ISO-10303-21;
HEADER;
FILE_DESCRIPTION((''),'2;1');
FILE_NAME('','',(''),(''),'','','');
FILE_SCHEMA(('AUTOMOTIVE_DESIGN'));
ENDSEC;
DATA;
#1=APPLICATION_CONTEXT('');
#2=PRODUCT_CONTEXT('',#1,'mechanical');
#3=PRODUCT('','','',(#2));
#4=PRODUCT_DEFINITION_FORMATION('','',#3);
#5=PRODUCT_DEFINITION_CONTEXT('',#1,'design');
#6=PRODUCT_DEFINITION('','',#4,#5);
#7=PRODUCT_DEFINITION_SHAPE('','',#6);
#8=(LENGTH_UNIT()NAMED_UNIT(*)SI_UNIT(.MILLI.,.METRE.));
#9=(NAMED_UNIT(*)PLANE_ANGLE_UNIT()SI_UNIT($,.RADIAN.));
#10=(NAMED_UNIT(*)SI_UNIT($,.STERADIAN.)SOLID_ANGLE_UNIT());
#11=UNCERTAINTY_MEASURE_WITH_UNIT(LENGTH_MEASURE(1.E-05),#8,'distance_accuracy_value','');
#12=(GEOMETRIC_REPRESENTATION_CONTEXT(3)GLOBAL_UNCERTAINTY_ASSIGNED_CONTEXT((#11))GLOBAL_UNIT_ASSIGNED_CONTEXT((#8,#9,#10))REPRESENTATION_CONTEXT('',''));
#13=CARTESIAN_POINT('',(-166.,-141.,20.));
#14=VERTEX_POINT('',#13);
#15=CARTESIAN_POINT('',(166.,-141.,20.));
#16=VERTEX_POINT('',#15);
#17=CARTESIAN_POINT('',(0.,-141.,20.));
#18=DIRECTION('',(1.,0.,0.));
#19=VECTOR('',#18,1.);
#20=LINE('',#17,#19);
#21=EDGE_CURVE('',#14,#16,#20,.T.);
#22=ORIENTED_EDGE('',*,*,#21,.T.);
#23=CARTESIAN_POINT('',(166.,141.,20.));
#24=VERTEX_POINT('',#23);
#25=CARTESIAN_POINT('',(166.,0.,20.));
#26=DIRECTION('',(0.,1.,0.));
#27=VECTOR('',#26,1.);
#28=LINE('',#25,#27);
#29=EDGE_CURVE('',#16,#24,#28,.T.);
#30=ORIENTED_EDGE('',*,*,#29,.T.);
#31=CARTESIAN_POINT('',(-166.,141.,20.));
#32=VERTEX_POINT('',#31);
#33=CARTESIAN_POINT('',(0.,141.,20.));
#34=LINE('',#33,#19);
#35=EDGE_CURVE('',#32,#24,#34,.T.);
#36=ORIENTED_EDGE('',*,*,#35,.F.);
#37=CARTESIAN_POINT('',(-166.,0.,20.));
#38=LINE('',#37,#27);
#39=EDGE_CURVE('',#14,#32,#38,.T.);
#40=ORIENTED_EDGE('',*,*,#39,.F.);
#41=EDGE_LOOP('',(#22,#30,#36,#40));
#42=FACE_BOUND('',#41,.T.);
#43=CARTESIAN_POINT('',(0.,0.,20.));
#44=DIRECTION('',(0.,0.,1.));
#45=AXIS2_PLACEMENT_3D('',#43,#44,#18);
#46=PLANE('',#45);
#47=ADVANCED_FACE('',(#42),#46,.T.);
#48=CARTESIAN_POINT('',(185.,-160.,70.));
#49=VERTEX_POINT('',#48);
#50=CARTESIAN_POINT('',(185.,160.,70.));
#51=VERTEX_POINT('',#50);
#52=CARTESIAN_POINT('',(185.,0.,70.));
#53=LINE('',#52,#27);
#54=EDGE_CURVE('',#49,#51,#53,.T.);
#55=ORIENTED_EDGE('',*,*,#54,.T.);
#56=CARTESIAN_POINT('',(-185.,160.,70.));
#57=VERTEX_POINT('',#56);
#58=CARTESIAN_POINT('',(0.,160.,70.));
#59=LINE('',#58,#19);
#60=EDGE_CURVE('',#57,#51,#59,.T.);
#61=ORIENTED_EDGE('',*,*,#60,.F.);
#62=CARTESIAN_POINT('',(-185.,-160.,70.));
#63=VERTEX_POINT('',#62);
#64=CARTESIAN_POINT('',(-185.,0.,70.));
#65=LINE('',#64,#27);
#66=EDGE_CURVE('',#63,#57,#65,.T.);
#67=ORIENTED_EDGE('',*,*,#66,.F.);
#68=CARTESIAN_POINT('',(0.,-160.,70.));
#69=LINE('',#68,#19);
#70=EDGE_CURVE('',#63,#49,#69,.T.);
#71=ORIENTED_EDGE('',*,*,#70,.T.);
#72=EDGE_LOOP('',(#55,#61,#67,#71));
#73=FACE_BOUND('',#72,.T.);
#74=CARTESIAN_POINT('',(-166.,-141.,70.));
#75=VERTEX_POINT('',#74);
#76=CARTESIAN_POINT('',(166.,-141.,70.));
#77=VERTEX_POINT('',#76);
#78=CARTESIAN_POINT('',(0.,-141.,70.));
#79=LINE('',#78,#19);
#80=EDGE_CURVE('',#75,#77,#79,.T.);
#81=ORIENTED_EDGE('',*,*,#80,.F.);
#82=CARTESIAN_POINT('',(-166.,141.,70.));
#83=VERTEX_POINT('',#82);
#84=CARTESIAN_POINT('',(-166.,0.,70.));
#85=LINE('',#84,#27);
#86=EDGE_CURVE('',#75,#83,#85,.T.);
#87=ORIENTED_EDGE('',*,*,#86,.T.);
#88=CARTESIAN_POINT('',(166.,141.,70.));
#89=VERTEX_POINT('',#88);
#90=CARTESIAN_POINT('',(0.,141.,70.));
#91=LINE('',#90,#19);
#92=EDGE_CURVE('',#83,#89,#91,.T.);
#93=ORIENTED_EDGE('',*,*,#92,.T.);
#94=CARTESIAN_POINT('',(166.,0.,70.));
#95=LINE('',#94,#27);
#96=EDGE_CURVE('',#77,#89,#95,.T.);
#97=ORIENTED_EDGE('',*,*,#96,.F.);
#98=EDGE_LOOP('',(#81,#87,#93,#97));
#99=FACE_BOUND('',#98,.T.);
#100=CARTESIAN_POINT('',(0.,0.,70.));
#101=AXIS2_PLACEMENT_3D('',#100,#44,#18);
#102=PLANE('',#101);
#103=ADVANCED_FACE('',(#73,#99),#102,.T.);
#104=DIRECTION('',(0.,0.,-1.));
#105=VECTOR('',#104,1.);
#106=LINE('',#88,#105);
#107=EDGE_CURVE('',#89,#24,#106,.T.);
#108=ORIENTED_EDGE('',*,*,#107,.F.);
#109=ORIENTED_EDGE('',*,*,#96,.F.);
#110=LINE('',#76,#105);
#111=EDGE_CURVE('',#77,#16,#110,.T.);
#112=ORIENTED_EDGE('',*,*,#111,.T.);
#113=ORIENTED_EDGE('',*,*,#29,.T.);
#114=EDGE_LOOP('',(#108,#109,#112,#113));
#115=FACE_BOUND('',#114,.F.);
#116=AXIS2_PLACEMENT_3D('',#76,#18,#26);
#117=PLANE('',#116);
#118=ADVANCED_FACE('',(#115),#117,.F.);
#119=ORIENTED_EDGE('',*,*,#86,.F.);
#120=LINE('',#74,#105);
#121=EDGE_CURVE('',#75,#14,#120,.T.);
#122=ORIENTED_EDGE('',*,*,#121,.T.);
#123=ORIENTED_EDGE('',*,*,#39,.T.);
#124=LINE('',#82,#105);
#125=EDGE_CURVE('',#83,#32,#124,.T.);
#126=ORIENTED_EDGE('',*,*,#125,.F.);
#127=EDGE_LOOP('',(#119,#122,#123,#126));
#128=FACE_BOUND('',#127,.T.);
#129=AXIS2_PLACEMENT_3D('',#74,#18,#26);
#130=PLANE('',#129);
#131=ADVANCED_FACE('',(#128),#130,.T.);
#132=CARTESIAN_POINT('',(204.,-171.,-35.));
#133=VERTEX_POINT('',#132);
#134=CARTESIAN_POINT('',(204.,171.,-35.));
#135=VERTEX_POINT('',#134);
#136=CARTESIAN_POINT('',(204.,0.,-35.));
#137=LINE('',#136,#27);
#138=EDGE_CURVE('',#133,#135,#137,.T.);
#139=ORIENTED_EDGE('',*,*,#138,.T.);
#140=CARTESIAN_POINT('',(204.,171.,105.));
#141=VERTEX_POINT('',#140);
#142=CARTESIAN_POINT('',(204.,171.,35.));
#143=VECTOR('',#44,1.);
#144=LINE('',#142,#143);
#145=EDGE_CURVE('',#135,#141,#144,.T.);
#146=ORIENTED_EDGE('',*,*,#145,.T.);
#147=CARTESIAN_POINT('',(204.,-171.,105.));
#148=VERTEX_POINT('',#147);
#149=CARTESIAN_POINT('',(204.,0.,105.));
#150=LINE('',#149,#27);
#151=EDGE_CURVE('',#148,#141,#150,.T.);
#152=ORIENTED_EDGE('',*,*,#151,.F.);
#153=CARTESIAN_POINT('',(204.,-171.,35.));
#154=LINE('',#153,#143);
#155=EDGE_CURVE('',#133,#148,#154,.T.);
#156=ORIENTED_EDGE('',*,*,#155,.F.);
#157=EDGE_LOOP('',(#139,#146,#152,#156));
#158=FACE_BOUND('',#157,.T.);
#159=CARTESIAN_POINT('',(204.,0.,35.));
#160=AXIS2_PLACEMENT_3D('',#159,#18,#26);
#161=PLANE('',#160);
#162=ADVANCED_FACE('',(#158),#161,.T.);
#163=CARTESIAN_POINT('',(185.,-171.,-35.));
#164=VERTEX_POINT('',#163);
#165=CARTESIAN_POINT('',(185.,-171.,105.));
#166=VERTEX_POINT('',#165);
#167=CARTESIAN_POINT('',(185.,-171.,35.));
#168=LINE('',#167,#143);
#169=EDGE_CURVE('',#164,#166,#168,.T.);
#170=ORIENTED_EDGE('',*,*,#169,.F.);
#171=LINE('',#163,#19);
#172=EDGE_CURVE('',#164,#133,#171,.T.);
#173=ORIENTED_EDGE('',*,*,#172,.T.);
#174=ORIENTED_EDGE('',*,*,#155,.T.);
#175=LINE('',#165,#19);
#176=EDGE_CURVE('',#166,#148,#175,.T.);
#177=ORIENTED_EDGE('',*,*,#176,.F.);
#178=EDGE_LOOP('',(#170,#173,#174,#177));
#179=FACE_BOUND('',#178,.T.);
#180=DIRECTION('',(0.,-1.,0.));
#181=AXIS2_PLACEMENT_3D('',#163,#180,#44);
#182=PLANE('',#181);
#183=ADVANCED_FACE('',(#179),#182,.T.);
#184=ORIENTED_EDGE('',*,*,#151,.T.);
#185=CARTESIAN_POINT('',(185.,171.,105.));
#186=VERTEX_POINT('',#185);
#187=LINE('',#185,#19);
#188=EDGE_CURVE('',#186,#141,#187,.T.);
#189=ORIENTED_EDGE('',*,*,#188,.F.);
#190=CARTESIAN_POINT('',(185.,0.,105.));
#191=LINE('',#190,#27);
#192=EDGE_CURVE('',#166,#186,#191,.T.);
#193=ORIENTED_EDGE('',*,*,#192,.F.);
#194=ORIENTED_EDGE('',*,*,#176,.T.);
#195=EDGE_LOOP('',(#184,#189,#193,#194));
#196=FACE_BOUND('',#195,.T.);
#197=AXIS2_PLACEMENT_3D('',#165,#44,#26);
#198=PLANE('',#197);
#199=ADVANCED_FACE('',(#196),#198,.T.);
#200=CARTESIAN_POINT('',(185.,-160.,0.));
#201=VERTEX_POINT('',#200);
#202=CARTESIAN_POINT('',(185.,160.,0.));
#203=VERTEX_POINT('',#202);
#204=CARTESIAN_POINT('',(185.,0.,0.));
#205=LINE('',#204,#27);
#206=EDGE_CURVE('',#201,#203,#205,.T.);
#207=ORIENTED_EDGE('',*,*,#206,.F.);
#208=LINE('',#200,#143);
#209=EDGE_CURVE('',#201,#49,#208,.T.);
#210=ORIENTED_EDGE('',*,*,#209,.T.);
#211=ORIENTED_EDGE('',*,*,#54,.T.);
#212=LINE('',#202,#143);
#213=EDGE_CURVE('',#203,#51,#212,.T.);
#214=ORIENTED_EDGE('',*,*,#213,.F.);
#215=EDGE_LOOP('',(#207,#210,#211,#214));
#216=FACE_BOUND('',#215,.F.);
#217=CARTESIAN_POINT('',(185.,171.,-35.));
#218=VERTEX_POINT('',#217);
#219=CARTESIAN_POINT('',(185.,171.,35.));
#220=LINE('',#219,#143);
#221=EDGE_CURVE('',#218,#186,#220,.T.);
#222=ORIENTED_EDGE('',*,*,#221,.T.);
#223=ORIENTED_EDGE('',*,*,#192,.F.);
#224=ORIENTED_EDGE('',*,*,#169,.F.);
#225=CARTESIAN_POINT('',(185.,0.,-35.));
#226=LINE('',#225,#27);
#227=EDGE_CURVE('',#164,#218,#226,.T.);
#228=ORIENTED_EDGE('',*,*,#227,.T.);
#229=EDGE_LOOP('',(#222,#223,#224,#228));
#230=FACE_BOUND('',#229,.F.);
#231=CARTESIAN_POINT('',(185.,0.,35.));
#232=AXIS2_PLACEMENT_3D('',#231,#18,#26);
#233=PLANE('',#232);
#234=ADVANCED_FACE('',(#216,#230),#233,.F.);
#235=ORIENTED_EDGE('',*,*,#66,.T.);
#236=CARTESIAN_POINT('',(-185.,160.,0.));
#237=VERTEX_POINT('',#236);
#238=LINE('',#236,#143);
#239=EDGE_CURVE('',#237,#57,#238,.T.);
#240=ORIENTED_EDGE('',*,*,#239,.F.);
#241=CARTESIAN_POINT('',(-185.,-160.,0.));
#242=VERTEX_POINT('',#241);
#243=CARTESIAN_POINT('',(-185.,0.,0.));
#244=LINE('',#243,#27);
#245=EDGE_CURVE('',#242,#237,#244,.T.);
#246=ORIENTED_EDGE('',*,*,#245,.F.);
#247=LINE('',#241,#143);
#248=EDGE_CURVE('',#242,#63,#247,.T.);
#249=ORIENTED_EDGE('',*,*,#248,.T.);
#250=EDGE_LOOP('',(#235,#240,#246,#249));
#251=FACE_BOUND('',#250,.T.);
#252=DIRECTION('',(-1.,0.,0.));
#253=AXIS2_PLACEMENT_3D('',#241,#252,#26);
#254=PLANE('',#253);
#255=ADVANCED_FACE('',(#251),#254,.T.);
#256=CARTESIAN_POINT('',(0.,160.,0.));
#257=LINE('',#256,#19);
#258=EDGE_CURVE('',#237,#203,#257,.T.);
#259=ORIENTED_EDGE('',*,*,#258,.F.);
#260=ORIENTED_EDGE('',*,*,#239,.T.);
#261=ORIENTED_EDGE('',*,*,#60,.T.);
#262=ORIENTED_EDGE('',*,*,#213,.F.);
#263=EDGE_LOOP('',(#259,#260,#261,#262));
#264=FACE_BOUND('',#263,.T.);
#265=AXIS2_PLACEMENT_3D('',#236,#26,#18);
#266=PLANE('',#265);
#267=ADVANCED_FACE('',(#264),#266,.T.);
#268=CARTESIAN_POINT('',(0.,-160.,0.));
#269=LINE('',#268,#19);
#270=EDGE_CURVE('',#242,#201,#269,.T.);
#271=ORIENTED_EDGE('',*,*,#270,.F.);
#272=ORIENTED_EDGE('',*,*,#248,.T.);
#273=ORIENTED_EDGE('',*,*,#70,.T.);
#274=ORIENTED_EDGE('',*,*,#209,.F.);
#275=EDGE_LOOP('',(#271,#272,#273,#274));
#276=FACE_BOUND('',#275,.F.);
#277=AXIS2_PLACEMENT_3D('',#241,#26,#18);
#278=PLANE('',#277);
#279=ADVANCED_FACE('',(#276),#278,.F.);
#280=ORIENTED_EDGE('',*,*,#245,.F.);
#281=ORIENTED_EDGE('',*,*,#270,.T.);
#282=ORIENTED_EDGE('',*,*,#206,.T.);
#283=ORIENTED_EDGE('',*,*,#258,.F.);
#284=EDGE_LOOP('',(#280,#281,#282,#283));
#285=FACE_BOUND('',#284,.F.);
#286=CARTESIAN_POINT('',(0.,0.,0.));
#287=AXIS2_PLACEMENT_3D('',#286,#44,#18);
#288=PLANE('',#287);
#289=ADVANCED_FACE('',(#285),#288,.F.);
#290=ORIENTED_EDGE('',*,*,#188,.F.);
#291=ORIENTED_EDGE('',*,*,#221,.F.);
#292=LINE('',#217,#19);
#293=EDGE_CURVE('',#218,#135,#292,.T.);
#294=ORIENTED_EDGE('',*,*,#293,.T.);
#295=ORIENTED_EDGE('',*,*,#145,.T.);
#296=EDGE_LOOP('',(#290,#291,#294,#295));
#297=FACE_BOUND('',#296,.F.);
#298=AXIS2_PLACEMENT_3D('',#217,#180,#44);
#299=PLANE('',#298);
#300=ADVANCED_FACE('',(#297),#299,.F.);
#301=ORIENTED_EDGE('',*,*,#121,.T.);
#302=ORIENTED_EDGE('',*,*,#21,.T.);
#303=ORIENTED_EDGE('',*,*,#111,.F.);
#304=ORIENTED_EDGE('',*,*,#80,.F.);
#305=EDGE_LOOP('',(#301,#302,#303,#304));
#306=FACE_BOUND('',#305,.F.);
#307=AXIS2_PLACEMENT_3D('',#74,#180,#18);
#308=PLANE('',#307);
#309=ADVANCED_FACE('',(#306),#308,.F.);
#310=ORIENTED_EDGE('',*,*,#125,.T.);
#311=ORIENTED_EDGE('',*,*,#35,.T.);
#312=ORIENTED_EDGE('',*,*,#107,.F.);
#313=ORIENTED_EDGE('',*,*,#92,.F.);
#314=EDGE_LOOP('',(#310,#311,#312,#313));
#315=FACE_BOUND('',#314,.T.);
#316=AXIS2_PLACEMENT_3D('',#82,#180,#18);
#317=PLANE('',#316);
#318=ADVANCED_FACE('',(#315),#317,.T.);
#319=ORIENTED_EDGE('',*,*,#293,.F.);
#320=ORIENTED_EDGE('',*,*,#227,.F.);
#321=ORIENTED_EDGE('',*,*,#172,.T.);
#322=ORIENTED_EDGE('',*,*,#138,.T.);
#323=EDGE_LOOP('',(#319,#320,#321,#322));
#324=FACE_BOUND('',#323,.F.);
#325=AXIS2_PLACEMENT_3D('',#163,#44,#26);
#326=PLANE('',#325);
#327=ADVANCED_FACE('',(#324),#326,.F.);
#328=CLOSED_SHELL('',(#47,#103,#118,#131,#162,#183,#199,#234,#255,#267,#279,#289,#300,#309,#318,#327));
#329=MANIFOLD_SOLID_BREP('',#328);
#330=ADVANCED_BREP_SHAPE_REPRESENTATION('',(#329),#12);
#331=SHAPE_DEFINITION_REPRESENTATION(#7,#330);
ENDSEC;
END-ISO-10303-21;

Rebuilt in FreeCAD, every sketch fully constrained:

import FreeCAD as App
import Part
import Sketcher
from FreeCAD import Vector
Q = App.Units.Quantity

doc = App.newDocument("Part")
body = doc.addObject("PartDesign::Body", "Body")

sketch1 = body.newObject("Sketcher::SketchObject", "Sketch")
sketch1.AttachmentSupport = (doc.getObject("XY_Plane"), [""])
sketch1.MapMode = "FlatFace"
sketch1.addGeometry([
    Part.LineSegment(Vector(-185, 160, 0), Vector(-185, -160, 0)),
    Part.LineSegment(Vector(-185, -160, 0), Vector(185, -160, 0)),
    Part.LineSegment(Vector(185, -160, 0), Vector(185, 160, 0)),
    Part.LineSegment(Vector(185, 160, 0), Vector(-185, 160, 0)),
], False)
sketch1.addConstraint([
    Sketcher.Constraint("Coincident", 0, 2, 1, 1),
    Sketcher.Constraint("Coincident", 1, 2, 2, 1),
    Sketcher.Constraint("Coincident", 2, 2, 3, 1),
    Sketcher.Constraint("Coincident", 3, 2, 0, 1),
    Sketcher.Constraint("Vertical", 0),
    Sketcher.Constraint("Horizontal", 1),
    Sketcher.Constraint("Vertical", 2),
    Sketcher.Constraint("Horizontal", 3),
    Sketcher.Constraint("Symmetric", 0, 2, 2, 2, -1, 1),
    Sketcher.Constraint("DistanceX", 1, 1, 1, 2, Q("370 mm")),
    Sketcher.Constraint("DistanceY", 0, 2, 0, 1, Q("320 mm")),
])
pad1 = body.newObject("PartDesign::Pad", "Pad")
pad1.Profile = sketch1
pad1.Length = 70

sketch2 = body.newObject("Sketcher::SketchObject", "Sketch001")
sketch2.AttachmentSupport = (doc.getObject("XY_Plane"), [""])
sketch2.MapMode = "FlatFace"
sketch2.AttachmentOffset = App.Placement(Vector(0, 0, 70), App.Rotation())
sketch2.addGeometry([
    Part.LineSegment(Vector(-166, 141, 0), Vector(-166, -141, 0)),
    Part.LineSegment(Vector(-166, -141, 0), Vector(166, -141, 0)),
    Part.LineSegment(Vector(166, -141, 0), Vector(166, 141, 0)),
    Part.LineSegment(Vector(166, 141, 0), Vector(-166, 141, 0)),
], False)
sketch2.addConstraint([
    Sketcher.Constraint("Coincident", 0, 2, 1, 1),
    Sketcher.Constraint("Coincident", 1, 2, 2, 1),
    Sketcher.Constraint("Coincident", 2, 2, 3, 1),
    Sketcher.Constraint("Coincident", 3, 2, 0, 1),
    Sketcher.Constraint("Vertical", 0),
    Sketcher.Constraint("Horizontal", 1),
    Sketcher.Constraint("Vertical", 2),
    Sketcher.Constraint("Horizontal", 3),
    Sketcher.Constraint("Symmetric", 0, 2, 2, 2, -1, 1),
    Sketcher.Constraint("DistanceX", 1, 1, 1, 2, Q("332 mm")),
    Sketcher.Constraint("DistanceY", 0, 2, 0, 1, Q("282 mm")),
])
pocket1 = body.newObject("PartDesign::Pocket", "Pocket")
pocket1.Profile = sketch2
pocket1.Length = 50

sketch3 = body.newObject("Sketcher::SketchObject", "Sketch002")
sketch3.AttachmentSupport = (doc.getObject("YZ_Plane"), [""])
sketch3.MapMode = "FlatFace"
sketch3.AttachmentOffset = App.Placement(Vector(0, 0, 185), App.Rotation())
sketch3.addGeometry([
    Part.LineSegment(Vector(-171, 105, 0), Vector(-171, -35, 0)),
    Part.LineSegment(Vector(-171, -35, 0), Vector(171, -35, 0)),
    Part.LineSegment(Vector(171, -35, 0), Vector(171, 105, 0)),
    Part.LineSegment(Vector(171, 105, 0), Vector(-171, 105, 0)),
], False)
sketch3.addConstraint([
    Sketcher.Constraint("Coincident", 0, 2, 1, 1),
    Sketcher.Constraint("Coincident", 1, 2, 2, 1),
    Sketcher.Constraint("Coincident", 2, 2, 3, 1),
    Sketcher.Constraint("Coincident", 3, 2, 0, 1),
    Sketcher.Constraint("Vertical", 0),
    Sketcher.Constraint("Horizontal", 1),
    Sketcher.Constraint("Vertical", 2),
    Sketcher.Constraint("Horizontal", 3),
    Sketcher.Constraint("DistanceX", 1, 1, 1, 2, Q("342 mm")),
    Sketcher.Constraint("DistanceY", 0, 2, 0, 1, Q("140 mm")),
    Sketcher.Constraint("DistanceX", 0, 2, -1, 1, Q("171 mm")),
    Sketcher.Constraint("DistanceY", 0, 2, -1, 1, Q("35 mm")),
])
pad2 = body.newObject("PartDesign::Pad", "Pad001")
pad2.Profile = sketch3
pad2.Length = 19

doc.recompute()
